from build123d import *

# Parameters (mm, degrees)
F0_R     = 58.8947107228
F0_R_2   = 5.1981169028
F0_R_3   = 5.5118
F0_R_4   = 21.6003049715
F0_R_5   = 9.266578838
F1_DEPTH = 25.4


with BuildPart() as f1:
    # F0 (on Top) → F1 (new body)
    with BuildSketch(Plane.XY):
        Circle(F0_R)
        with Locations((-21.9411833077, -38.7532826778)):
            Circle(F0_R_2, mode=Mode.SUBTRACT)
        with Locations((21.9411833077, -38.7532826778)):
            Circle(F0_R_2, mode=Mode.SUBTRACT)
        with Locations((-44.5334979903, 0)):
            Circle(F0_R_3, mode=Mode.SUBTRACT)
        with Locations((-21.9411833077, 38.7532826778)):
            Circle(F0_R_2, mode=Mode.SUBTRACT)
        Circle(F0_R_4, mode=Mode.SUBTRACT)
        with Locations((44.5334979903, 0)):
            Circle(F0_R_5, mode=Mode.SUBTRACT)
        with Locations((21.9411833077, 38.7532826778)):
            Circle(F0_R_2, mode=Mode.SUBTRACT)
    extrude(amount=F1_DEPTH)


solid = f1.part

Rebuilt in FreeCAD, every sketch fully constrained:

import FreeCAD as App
import Part
import Sketcher
Q = App.Units.Quantity

doc = App.newDocument("Part")
body = doc.addObject("PartDesign::Body", "Body")

sketch1 = body.newObject("Sketcher::SketchObject", "Sketch")
sketch1.AttachmentSupport = (doc.getObject("XY_Plane"), [""])
sketch1.MapMode = "FlatFace"
sketch1.addGeometry([
    Part.Circle(App.Vector(0, 0, 0), App.Vector(0, 0, 1), 59),
    Part.Circle(App.Vector(-22, -39, 0), App.Vector(0, 0, 1), 5),
    Part.Circle(App.Vector(22, -39, 0), App.Vector(0, 0, 1), 5),
    Part.Circle(App.Vector(-45, 0, 0), App.Vector(0, 0, 1), 6),
    Part.Circle(App.Vector(0, 0, 0), App.Vector(0, 0, 1), 22),
    Part.Circle(App.Vector(-22, 39, 0), App.Vector(0, 0, 1), 5),
    Part.Circle(App.Vector(45, 0, 0), App.Vector(0, 0, 1), 9),
    Part.Circle(App.Vector(22, 39, 0), App.Vector(0, 0, 1), 5),
], False)
sketch1.addConstraint([
    Sketcher.Constraint("Coincident", 0, 3, -1, 1),
    Sketcher.Constraint("Coincident", 4, 3, -1, 1),
    Sketcher.Constraint("Equal", 1, 2),
    Sketcher.Constraint("Equal", 2, 5),
    Sketcher.Constraint("Equal", 5, 7),
    Sketcher.Constraint("Symmetric", 2, 3, 5, 3, -1, 1),
    Sketcher.Constraint("Symmetric", 3, 3, 6, 3, -1, 1),
    Sketcher.Constraint("Symmetric", 1, 3, 7, 3, -1, 1),
    Sketcher.Constraint("Symmetric", 1, 3, 2, 3, -2),
    Sketcher.Constraint("PointOnObject", 3, 3, -1),
    Sketcher.Constraint("Diameter", 3, Q("0.434 in")),
    Sketcher.Constraint("Diameter", 0, 117.789421),
    Sketcher.Constraint("Diameter", 4, 43.20061),
    Sketcher.Constraint("Diameter", 1, 10.396234),
    Sketcher.Constraint("Diameter", 6, 18.533158),
    Sketcher.Constraint("DistanceX", 3, 3, 2, 3, 66.474681),
    Sketcher.Constraint("DistanceX", 1, 3, -1, 1, 21.941183),
    Sketcher.Constraint("DistanceY", 1, 3, -1, 1, 38.753283),
])
pad1 = body.newObject("PartDesign::Pad", "Pad")
pad1.Profile = sketch1
pad1.Length = Q("1 in")

doc.recompute()
